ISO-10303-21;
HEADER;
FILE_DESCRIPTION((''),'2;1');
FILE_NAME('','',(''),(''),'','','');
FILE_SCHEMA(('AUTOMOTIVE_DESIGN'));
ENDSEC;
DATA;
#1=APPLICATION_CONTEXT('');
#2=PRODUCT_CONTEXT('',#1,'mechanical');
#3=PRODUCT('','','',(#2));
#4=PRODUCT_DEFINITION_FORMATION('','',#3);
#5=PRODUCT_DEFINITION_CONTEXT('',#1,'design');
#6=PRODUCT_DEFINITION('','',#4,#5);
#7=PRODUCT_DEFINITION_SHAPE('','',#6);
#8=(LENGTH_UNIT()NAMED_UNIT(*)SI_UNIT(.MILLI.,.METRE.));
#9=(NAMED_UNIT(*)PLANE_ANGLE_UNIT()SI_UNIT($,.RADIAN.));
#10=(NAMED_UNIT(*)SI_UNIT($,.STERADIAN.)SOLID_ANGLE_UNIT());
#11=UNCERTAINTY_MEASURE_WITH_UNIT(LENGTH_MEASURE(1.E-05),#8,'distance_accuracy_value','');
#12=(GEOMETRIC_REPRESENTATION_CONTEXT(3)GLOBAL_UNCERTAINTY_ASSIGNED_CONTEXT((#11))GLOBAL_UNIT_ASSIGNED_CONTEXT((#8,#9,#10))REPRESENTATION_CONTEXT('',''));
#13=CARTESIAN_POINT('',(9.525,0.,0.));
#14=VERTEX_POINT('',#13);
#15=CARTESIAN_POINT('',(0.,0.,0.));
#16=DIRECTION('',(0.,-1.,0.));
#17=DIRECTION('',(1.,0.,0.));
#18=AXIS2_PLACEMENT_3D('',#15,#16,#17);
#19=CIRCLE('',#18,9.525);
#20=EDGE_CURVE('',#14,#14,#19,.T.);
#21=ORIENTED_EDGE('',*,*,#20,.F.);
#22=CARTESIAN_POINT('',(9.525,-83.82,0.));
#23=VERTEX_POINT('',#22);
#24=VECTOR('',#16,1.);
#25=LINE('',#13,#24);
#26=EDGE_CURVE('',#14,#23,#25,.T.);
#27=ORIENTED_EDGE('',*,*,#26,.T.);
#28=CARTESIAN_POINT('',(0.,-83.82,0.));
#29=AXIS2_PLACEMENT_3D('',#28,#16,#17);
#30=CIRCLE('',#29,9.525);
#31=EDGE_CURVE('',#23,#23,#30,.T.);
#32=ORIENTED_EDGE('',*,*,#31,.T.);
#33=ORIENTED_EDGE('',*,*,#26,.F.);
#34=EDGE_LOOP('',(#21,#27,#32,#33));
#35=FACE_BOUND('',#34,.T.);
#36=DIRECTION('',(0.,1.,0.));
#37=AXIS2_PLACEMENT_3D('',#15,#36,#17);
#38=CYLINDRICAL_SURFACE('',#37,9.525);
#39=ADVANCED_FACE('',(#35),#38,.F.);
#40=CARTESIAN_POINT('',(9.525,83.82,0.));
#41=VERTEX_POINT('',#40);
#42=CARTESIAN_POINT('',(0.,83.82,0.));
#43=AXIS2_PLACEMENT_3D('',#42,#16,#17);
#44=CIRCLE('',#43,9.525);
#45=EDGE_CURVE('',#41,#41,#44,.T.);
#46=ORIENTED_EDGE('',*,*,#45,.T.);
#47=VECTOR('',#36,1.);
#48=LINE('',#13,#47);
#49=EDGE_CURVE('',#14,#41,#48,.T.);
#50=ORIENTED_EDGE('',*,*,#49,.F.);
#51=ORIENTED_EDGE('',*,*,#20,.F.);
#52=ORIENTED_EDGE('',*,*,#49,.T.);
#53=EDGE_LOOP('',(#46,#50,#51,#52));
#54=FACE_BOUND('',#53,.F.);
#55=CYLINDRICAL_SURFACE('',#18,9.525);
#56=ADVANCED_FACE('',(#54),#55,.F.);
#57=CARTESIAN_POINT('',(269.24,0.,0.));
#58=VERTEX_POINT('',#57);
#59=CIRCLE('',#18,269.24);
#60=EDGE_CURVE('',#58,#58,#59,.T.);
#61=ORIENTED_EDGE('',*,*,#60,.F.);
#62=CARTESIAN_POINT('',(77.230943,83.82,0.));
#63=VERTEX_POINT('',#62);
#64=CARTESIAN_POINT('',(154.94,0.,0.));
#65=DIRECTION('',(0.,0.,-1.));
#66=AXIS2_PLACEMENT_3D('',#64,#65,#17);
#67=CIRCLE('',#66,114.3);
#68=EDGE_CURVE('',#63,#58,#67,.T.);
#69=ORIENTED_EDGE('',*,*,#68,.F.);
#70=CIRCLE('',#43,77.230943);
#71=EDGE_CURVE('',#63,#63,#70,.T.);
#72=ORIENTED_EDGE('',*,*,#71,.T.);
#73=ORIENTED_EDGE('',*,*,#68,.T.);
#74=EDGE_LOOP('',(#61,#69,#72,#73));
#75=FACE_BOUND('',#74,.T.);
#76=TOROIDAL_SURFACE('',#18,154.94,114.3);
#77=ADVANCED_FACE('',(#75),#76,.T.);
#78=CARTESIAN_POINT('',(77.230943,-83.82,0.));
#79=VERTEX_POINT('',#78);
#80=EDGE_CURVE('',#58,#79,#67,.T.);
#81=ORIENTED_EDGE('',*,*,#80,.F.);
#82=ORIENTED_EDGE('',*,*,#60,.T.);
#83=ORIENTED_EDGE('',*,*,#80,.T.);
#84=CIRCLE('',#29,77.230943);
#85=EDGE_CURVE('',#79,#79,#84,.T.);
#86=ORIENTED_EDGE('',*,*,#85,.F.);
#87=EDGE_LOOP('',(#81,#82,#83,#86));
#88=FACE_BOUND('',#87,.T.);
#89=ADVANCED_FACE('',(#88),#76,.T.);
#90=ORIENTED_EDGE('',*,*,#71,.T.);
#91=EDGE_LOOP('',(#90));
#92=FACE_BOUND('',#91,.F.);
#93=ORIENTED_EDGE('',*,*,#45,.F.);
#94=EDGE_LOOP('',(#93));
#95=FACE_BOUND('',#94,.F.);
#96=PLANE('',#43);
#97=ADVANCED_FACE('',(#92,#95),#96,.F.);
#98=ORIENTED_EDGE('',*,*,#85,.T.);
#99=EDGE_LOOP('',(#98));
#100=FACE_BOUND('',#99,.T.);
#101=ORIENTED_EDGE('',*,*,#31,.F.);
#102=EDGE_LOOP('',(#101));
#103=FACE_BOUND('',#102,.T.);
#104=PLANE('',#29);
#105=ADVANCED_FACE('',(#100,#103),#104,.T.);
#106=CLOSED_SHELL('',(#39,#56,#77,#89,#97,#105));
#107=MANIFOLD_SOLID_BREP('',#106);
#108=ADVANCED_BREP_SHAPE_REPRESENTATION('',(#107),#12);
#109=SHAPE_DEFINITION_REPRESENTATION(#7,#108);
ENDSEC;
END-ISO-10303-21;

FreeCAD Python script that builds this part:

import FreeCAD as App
import Part
import Sketcher

V = App.Vector
Q = App.Units.Quantity

doc = App.newDocument("Part")
body = doc.addObject("PartDesign::Body", "Body")

# Sketch on XY plane
sketch1 = doc.addObject("Sketcher::SketchObject", "Sketch")
body.addObject(sketch1)
sketch1.AttachmentSupport = (doc.XY_Plane, [""])
sketch1.MapMode = "FlatFace"
sketch1.addGeometry(Part.Circle(V(155, 0, 0), V(0, 0, 1), 114), False)
sketch1.addConstraint([
    Sketcher.Constraint("PointOnObject", 0, 3, -1),
    Sketcher.Constraint("Diameter", 0, Q("9 in")),
    Sketcher.Constraint("DistanceX", -1, 1, 0, 3, Q("6.1 in")),
])

# Sketch on XZ plane
sketch2 = doc.addObject("Sketcher::SketchObject", "Sketch001")
body.addObject(sketch2)
sketch2.AttachmentSupport = (doc.XZ_Plane, [""])
sketch2.MapMode = "FlatFace"
sketch2.addGeometry(Part.Circle(V(0, 0, 0), V(0, 0, 1), 166), False)
sketch2.addConstraint([
    Sketcher.Constraint("Coincident", 0, 3, -1, 1),
    Sketcher.Constraint("Diameter", 0, Q("13.1 in")),
])
doc.recompute()

additivepipe = doc.addObject("PartDesign::AdditivePipe", "AdditivePipe")
body.addObject(additivepipe)
additivepipe.Profile = sketch1
additivepipe.Spine = (sketch2, ["Edge1"])

# Sketch on XZ plane
sketch3 = doc.addObject("Sketcher::SketchObject", "Sketch002")
body.addObject(sketch3)
sketch3.AttachmentSupport = (doc.XZ_Plane, [""])
sketch3.MapMode = "FlatFace"
sketch3.addGeometry([
    Part.Circle(V(0, 0, 0), V(0, 0, 1), 89),
    Part.Circle(V(0, 0, 0), V(0, 0, 1), 10),
], False)
sketch3.addConstraint([
    Sketcher.Constraint("Coincident", 0, 3, -1, 1),
    Sketcher.Constraint("Coincident", 1, 3, -1, 1),
    Sketcher.Constraint("Diameter", 0, Q("7 in")),
    Sketcher.Constraint("Diameter", 1, Q("0.75 in")),
])
pad1 = doc.addObject("PartDesign::Pad", "Pad")
body.addObject(pad1)
pad1.Profile = sketch3
pad1.Type = "TwoLengths"
pad1.Length = Q("3.3 in")
pad1.Length2 = Q("3.3 in")

doc.recompute()
